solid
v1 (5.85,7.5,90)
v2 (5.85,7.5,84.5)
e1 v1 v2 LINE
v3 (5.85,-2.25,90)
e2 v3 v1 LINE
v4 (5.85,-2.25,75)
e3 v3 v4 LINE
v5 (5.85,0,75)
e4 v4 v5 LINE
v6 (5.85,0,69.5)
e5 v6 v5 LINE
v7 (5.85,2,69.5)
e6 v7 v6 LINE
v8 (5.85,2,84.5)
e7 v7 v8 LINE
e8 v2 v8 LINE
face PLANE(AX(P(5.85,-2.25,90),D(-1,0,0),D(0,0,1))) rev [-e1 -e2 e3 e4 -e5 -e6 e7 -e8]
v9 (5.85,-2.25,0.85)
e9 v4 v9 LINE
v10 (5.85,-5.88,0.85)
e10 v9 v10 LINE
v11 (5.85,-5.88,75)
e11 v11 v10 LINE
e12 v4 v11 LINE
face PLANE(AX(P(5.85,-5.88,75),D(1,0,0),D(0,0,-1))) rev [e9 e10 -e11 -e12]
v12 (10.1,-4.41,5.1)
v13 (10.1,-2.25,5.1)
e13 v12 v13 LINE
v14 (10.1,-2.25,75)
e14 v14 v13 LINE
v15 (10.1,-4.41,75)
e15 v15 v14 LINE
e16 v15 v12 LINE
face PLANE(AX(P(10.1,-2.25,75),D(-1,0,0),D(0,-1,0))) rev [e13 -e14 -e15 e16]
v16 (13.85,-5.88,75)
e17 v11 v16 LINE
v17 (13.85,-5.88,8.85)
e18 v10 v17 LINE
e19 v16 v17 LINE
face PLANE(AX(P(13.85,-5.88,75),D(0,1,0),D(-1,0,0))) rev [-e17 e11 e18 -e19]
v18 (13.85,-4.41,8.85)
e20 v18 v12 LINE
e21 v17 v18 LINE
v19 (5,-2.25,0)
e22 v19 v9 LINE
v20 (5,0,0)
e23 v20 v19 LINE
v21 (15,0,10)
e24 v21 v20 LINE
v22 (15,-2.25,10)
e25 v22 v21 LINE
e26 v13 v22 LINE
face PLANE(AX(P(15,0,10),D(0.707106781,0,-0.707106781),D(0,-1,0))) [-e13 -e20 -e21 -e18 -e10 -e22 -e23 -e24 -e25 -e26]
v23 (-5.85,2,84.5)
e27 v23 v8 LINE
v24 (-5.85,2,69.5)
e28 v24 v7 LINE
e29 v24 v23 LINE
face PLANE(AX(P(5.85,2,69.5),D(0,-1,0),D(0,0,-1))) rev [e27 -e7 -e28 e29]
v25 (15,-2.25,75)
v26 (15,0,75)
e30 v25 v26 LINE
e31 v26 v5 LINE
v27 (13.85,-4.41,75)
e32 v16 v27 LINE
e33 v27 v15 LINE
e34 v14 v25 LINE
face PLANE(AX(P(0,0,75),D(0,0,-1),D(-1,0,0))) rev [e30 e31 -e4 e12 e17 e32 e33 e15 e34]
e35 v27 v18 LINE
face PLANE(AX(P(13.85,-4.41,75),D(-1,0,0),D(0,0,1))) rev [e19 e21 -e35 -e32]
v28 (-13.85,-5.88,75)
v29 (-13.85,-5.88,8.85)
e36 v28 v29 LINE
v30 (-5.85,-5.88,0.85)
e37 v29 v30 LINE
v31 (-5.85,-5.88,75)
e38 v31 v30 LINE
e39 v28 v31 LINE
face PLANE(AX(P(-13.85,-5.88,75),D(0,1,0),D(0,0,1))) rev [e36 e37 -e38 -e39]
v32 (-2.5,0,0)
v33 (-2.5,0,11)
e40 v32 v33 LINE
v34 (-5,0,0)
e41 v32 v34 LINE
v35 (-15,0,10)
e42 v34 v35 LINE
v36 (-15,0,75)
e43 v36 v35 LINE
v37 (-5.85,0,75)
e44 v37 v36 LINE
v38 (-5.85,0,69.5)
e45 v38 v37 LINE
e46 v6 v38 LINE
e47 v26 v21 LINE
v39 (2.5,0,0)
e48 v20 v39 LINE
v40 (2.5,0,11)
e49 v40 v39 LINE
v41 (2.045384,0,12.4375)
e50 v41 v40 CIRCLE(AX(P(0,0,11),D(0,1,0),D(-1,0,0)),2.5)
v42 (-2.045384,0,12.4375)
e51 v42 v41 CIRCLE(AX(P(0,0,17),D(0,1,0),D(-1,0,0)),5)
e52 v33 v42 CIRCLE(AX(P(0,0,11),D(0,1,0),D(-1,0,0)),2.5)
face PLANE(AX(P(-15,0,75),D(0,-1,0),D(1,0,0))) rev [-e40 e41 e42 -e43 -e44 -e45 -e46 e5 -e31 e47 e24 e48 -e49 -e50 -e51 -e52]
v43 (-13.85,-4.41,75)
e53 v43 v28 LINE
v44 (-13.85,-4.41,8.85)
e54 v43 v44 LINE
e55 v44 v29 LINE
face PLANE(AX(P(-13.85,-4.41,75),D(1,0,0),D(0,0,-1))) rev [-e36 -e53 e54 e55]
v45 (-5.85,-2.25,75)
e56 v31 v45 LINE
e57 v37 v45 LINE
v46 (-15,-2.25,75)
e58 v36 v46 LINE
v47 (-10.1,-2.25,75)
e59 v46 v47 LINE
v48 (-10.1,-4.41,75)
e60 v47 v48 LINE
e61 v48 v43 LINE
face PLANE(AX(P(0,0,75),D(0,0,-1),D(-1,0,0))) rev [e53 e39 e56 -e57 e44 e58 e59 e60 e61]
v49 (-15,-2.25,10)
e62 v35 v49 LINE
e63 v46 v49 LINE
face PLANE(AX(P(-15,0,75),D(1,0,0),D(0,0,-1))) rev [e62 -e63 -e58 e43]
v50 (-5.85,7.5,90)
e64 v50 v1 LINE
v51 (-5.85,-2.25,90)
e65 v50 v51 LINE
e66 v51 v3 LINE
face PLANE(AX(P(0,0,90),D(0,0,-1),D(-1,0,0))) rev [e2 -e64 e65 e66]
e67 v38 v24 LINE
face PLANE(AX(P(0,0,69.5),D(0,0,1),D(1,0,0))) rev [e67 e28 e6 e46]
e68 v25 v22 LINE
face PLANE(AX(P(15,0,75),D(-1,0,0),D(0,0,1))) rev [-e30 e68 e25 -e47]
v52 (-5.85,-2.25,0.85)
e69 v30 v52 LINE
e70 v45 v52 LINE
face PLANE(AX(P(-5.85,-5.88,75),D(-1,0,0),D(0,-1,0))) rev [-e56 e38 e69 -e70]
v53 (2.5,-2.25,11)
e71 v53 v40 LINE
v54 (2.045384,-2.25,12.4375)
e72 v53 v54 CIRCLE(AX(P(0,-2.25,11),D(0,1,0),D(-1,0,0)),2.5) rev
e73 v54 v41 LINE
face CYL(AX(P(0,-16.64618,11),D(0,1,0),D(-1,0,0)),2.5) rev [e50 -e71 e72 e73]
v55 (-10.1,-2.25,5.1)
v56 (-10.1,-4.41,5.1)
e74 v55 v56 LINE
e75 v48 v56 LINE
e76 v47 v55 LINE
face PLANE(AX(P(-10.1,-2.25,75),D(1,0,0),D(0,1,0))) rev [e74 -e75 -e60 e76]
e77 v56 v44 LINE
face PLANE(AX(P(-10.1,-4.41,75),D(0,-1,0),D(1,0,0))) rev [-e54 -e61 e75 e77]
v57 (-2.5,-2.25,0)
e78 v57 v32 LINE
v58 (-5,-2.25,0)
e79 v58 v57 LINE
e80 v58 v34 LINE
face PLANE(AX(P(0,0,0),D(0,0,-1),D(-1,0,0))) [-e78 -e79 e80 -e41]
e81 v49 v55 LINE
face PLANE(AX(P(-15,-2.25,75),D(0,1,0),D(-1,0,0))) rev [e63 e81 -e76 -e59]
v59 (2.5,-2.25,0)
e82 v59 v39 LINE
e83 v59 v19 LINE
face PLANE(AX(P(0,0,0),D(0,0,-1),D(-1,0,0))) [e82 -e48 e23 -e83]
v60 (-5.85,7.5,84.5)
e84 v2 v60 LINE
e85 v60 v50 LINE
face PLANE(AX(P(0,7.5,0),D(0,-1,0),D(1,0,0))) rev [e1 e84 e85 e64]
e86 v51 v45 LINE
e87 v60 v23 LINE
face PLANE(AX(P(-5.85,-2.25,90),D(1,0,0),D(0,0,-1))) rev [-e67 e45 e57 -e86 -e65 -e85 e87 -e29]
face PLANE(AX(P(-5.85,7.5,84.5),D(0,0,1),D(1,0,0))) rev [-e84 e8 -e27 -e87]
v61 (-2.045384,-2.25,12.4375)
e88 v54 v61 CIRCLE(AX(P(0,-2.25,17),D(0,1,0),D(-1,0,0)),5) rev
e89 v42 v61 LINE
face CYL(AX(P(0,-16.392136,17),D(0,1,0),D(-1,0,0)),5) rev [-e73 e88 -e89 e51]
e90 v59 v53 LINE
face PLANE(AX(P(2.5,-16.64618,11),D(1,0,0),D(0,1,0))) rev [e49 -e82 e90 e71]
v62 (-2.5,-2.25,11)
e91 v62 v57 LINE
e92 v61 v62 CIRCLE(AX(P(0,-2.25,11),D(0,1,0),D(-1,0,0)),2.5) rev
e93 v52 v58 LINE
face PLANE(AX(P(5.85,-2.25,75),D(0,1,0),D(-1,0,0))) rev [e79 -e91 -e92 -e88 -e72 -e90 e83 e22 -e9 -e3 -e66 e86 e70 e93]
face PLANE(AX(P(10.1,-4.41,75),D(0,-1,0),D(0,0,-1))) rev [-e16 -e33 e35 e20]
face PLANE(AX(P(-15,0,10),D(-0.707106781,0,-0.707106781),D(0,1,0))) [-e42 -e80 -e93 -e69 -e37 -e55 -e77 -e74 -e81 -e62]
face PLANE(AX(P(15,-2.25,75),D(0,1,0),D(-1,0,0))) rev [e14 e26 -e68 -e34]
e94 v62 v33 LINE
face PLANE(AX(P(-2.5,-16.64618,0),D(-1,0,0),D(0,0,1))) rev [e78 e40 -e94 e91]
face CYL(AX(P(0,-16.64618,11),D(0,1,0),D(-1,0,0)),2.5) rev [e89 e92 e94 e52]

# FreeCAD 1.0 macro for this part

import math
import FreeCAD as App
import Part
import Sketcher
from FreeCAD import Vector


def edges_at(feature, points):
    """Names of the edges that pass closest to the given points."""
    edges = feature.Shape.Edges
    near = lambda p: min(range(len(edges)), key=lambda i: edges[i].distToShape(Part.Vertex(*p))[0])
    return sorted({f"Edge{near(p) + 1}" for p in points})


def add_polygon(sketch, points):
    """Adds a closed chain of lines whose ends are joined by coincident constraints."""
    first, n = sketch.GeometryCount, len(points)
    for a, b in zip(points, points[1:] + points[:1]):
        sketch.addGeometry(Part.LineSegment(App.Vector(*a, 0), App.Vector(*b, 0)), False)
    for i in range(n):
        sketch.addConstraint(Sketcher.Constraint("Coincident", first + i, 2, first + (i + 1) % n, 1))

doc = App.newDocument("Part")
body = doc.addObject("PartDesign::Body", "Body")

# Sketch on XY plane
sketch1 = doc.addObject("Sketcher::SketchObject", "Sketch")
body.addObject(sketch1)
sketch1.AttachmentSupport = (doc.XY_Plane, [""])
sketch1.MapMode = "FlatFace"
add_polygon(sketch1, [(15, 0), (-15, 0), (-15, -2.2), (-10.1, -2.2), (-10.1, -4.4), (-13.8, -4.4), (-13.8, -5.9), (-5.8, -5.9), (-5.8, -2.2), (5.8, -2.2), (5.8, -5.9), (13.8, -5.9), (13.8, -4.4), (10.1, -4.4), (10.1, -2.2), (15, -2.2)])  # lines 0-15
sketch1.addConstraint([
    Sketcher.Constraint("Horizontal", 0),
    Sketcher.Constraint("Vertical", 1),
    Sketcher.Constraint("Horizontal", 2),
    Sketcher.Constraint("Vertical", 3),
    Sketcher.Constraint("Horizontal", 4),
    Sketcher.Constraint("Vertical", 5),
    Sketcher.Constraint("Horizontal", 6),
    Sketcher.Constraint("Vertical", 7),
    Sketcher.Constraint("Horizontal", 8),
    Sketcher.Constraint("Vertical", 9),
    Sketcher.Constraint("Horizontal", 10),
    Sketcher.Constraint("Vertical", 11),
    Sketcher.Constraint("Horizontal", 12),
    Sketcher.Constraint("Vertical", 13),
    Sketcher.Constraint("Horizontal", 14),
    Sketcher.Constraint("Vertical", 15),
    Sketcher.Constraint("Symmetric", 0, 2, 15, 2, -1, 1),
    Sketcher.Constraint("Symmetric", 6, 2, 9, 2, -2),
    Sketcher.Constraint("Symmetric", 4, 2, 11, 2, -2),
    Sketcher.Constraint("Symmetric", 2, 2, 13, 2, -2),
    Sketcher.Constraint("Horizontal", 2, 2, 7, 2),
    Sketcher.Constraint("DistanceX", 0, 2, 0, 1, 30.0),
    Sketcher.Constraint("DistanceX", 6, 1, 6, 2, 8.0),
    Sketcher.Constraint("DistanceX", 2, 1, 2, 2, 4.9),
    Sketcher.Constraint("DistanceX", 8, 1, 8, 2, 11.7),
    Sketcher.Constraint("DistanceY", 1, 2, 1, 1, 2.25),
    Sketcher.Constraint("DistanceY", 3, 2, 3, 1, 2.16),
    Sketcher.Constraint("DistanceY", 5, 2, 5, 1, 1.47),
])
pad1 = doc.addObject("PartDesign::Pad", "Pad")
body.addObject(pad1)
pad1.Profile = sketch1
pad1.Length = 75

# Sketch on XZ plane
sketch2 = doc.addObject("Sketcher::SketchObject", "Sketch001")
body.addObject(sketch2)
sketch2.AttachmentSupport = (doc.XZ_Plane, [""])
sketch2.MapMode = "FlatFace"
sketch2.addGeometry([
    Part.LineSegment(Vector(2.5, 11, 0), Vector(2.5, 0, 0)),
    Part.LineSegment(Vector(2.5, 0, 0), Vector(-2.5, 0, 0)),
    Part.LineSegment(Vector(-2.5, 0, 0), Vector(-2.5, 11, 0)),
    Part.ArcOfCircle(Part.Circle(Vector(0, 11, 0), Vector(0, 0, 1), 2.5), math.radians(0), math.radians(180)),
], False)
sketch2.addConstraint([
    Sketcher.Constraint("Coincident", 0, 2, 1, 1),
    Sketcher.Constraint("Coincident", 1, 2, 2, 1),
    Sketcher.Constraint("Tangent", 2, 2, 3, 2),
    Sketcher.Constraint("Tangent", 3, 1, 0, 1),
    Sketcher.Constraint("Vertical", 0),
    Sketcher.Constraint("Horizontal", 1),
    Sketcher.Constraint("Vertical", 2),
    Sketcher.Constraint("Symmetric", 0, 2, 1, 2, -1, 1),
    Sketcher.Constraint("Radius", 3, 2.5),
    Sketcher.Constraint("DistanceY", 0, 2, 0, 1, 11.0),
])
pocket1 = doc.addObject("PartDesign::Pocket", "Pocket")
body.addObject(pocket1)
pocket1.Profile = sketch2
pocket1.Length = 2.25
pocket1.Reversed = True

# Sketch on XY plane
sketch3 = doc.addObject("Sketcher::SketchObject", "Sketch002")
body.addObject(sketch3)
sketch3.AttachmentSupport = (doc.XY_Plane, [""])
sketch3.MapMode = "FlatFace"
sketch3.AttachmentOffset = App.Placement(Vector(0, 0, 75), App.Rotation())
add_polygon(sketch3, [(-5.8, 0), (-5.8, -2.2), (5.8, -2.2), (5.8, 0)])  # lines 0-3
sketch3.addConstraint([
    Sketcher.Constraint("Vertical", 0),
    Sketcher.Constraint("Horizontal", 1),
    Sketcher.Constraint("Vertical", 2),
    Sketcher.Constraint("Horizontal", 3),
    Sketcher.Constraint("Symmetric", 2, 2, 3, 2, -1, 1),
    Sketcher.Constraint("DistanceX", 1, 1, 1, 2, 11.7),
    Sketcher.Constraint("DistanceY", 0, 2, 0, 1, 2.25),
])
pad2 = doc.addObject("PartDesign::Pad", "Pad001")
body.addObject(pad2)
pad2.Profile = sketch3
pad2.Length = 15

# Sketch on XZ plane
sketch4 = doc.addObject("Sketcher::SketchObject", "Sketch003")
body.addObject(sketch4)
sketch4.AttachmentSupport = (doc.XZ_Plane, [""])
sketch4.MapMode = "FlatFace"
add_polygon(sketch4, [(-6, 84), (-6, 90), (6, 90), (6, 84)])  # lines 0-3
sketch4.addConstraint([
    Sketcher.Constraint("Vertical", 0),
    Sketcher.Constraint("Horizontal", 1),
    Sketcher.Constraint("Vertical", 2),
    Sketcher.Constraint("Horizontal", 3),
    Sketcher.Constraint("DistanceX", 1, 1, 1, 2, 11.7),
    Sketcher.Constraint("DistanceY", 0, 1, 0, 2, 5.5),
    Sketcher.Constraint("DistanceY", -1, 1, 0, 2, 90.0),
    Sketcher.Constraint("DistanceX", 0, 2, -1, 1, 5.85),
])
pad3 = doc.addObject("PartDesign::Pad", "Pad002")
body.addObject(pad3)
pad3.Profile = sketch4
pad3.Length = 7.5
pad3.Reversed = True

# Sketch on XY plane
sketch5 = doc.addObject("Sketcher::SketchObject", "Sketch004")
body.addObject(sketch5)
sketch5.AttachmentSupport = (doc.XY_Plane, [""])
sketch5.MapMode = "FlatFace"
sketch5.AttachmentOffset = App.Placement(Vector(0, 0, 84.5), App.Rotation())
add_polygon(sketch5, [(5.8, 2), (5.8, 0), (-5.8, 0), (-5.8, 2)])  # lines 0-3
sketch5.addConstraint([
    Sketcher.Constraint("Vertical", 0),
    Sketcher.Constraint("Horizontal", 1),
    Sketcher.Constraint("Vertical", 2),
    Sketcher.Constraint("Horizontal", 3),
    Sketcher.Constraint("Symmetric", 0, 2, 1, 2, -1, 1),
    Sketcher.Constraint("DistanceY", 0, 2, 0, 1, 2.0),
    Sketcher.Constraint("DistanceX", 1, 2, 1, 1, 11.7),
])
pad4 = doc.addObject("PartDesign::Pad", "Pad003")
body.addObject(pad4)
pad4.Profile = sketch5
pad4.Length = 15
pad4.Reversed = True

# Sketch on XZ plane
sketch6 = doc.addObject("Sketcher::SketchObject", "Sketch005")
body.addObject(sketch6)
sketch6.AttachmentSupport = (doc.XZ_Plane, [""])
sketch6.MapMode = "FlatFace"
sketch6.addGeometry(Part.Circle(Vector(0, 17, 0), Vector(0, 0, 1), 5), False)
sketch6.addConstraint([
    Sketcher.Constraint("PointOnObject", 0, 3, -2),
    Sketcher.Constraint("Diameter", 0, 10.0),
    Sketcher.Constraint("DistanceY", -1, 1, 0, 3, 17.0),
])
pocket2 = doc.addObject("PartDesign::Pocket", "Pocket001")
body.addObject(pocket2)
pocket2.Profile = sketch6
pocket2.Length = 2.25
pocket2.Reversed = True
doc.recompute()

chamfer = doc.addObject("PartDesign::Chamfer", "Chamfer")
body.addObject(chamfer)
chamfer.Base = (pocket2, edges_at(pocket2, [(15, -1.125, 0)]))
chamfer.Size = 10
doc.recompute()

chamfer2 = doc.addObject("PartDesign::Chamfer", "Chamfer001")
body.addObject(chamfer2)
chamfer2.Base = (chamfer, edges_at(chamfer, [(-15, -1.125, 0)]))
chamfer2.Size = 10

doc.recompute()
